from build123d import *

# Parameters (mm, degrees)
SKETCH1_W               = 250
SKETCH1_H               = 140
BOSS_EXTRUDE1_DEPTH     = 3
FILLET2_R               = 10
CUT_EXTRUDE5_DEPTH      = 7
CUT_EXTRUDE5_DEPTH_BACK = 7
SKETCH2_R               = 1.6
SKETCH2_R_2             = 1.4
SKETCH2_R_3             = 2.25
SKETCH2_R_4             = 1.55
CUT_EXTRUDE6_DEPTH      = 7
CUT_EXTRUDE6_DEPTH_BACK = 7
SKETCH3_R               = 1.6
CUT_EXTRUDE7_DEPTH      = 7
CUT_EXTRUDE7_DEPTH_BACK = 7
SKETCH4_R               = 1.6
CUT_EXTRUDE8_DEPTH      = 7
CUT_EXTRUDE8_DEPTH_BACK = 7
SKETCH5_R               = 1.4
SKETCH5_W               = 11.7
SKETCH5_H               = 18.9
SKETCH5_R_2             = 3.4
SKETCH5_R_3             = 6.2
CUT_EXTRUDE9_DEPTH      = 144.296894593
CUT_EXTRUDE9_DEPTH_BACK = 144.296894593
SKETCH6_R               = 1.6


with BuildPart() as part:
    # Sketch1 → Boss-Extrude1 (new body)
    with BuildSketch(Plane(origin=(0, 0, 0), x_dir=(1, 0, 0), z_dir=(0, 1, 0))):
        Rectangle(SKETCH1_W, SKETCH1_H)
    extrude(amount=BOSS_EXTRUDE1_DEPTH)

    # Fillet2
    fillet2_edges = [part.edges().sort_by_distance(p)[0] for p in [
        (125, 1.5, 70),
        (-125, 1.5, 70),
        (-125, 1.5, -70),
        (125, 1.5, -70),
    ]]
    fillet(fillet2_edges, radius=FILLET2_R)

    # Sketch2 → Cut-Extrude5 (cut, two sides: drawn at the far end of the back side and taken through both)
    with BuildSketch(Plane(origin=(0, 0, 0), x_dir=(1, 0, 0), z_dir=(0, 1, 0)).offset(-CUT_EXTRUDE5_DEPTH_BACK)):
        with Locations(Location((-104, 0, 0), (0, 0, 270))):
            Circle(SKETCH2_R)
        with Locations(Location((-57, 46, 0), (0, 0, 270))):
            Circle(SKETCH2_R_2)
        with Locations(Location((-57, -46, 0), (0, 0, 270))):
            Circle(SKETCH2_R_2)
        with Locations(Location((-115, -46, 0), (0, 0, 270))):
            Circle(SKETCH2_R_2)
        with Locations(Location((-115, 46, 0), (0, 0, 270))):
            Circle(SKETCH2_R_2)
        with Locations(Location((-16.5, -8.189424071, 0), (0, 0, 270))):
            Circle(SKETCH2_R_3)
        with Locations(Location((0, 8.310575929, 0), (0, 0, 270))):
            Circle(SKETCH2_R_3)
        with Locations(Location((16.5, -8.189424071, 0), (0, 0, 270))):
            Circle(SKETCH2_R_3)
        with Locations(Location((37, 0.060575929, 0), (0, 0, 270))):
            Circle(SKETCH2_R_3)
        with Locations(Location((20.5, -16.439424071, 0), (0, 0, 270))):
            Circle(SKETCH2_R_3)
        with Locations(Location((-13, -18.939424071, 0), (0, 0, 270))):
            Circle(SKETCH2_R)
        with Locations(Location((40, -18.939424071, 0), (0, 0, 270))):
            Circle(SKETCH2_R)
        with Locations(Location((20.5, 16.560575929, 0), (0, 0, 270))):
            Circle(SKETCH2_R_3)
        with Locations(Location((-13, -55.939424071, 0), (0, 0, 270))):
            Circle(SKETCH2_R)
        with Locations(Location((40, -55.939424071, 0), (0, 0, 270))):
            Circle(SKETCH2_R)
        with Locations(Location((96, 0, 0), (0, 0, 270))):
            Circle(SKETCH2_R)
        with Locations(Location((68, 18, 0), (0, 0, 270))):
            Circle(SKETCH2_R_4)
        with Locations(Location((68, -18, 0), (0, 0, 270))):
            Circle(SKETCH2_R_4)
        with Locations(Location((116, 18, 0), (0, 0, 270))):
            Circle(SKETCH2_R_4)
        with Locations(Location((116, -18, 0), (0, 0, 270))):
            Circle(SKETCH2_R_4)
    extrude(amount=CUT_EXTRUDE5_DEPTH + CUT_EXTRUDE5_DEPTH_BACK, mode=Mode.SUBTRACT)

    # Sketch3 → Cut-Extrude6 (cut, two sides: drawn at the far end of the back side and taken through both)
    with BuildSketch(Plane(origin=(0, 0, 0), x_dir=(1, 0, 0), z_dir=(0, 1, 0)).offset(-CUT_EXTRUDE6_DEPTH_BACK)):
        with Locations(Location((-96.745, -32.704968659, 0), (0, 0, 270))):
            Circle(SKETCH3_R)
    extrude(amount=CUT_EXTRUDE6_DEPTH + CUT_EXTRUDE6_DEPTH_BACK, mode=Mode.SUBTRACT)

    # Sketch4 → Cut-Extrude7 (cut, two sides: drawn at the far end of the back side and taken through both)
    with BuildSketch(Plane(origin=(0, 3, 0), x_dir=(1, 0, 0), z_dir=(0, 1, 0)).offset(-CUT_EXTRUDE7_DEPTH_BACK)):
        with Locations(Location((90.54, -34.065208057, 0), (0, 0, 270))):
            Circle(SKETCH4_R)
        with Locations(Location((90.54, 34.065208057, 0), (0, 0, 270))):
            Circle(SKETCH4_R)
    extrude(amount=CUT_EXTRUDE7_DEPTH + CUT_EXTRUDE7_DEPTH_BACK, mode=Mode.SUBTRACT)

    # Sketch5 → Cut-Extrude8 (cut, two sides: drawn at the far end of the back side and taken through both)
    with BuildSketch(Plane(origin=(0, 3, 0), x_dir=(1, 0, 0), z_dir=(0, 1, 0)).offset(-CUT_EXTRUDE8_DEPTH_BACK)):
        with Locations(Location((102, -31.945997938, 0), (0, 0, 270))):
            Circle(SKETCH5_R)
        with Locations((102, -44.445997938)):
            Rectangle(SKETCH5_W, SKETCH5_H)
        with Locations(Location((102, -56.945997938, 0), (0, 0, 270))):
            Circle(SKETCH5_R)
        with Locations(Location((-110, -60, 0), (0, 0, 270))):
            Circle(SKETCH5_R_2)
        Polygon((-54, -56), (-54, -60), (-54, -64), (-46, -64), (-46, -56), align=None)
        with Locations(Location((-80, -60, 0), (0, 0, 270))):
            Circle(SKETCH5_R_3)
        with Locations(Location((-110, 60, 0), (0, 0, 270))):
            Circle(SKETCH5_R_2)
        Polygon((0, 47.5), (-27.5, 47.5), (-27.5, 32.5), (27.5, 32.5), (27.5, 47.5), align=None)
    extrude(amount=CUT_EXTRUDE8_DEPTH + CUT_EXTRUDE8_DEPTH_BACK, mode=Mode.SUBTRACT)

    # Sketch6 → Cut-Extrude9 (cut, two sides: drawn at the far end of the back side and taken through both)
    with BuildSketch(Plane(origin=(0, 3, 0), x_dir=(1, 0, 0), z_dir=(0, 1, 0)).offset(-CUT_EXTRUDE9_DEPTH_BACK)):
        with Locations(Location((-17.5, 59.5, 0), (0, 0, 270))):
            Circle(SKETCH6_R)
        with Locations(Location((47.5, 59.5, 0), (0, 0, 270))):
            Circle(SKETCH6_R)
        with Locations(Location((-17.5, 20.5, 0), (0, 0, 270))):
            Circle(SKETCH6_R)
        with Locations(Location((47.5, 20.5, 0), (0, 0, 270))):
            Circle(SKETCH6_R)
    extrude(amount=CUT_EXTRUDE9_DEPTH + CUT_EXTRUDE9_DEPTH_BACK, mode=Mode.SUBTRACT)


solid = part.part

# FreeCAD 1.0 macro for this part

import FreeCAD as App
import Part
import Sketcher
from FreeCAD import Vector
Q = App.Units.Quantity


def edges_at(feature, points):
    """Names of the edges that pass closest to the given points."""
    edges = feature.Shape.Edges
    near = lambda p: min(range(len(edges)), key=lambda i: edges[i].distToShape(Part.Vertex(*p))[0])
    return sorted({f"Edge{near(p) + 1}" for p in points})


def add_polygon(sketch, points):
    """Adds a closed chain of lines whose ends are joined by coincident constraints."""
    first, n = sketch.GeometryCount, len(points)
    for a, b in zip(points, points[1:] + points[:1]):
        sketch.addGeometry(Part.LineSegment(App.Vector(*a, 0), App.Vector(*b, 0)), False)
    for i in range(n):
        sketch.addConstraint(Sketcher.Constraint("Coincident", first + i, 2, first + (i + 1) % n, 1))

doc = App.newDocument("Part")
params = doc.addObject("Spreadsheet::Sheet", "Params")
for row, (alias, value) in enumerate([
    ("sketch1_width", "250 mm"),
    ("sketch1_height", "140 mm"),
    ("pad1_length", "3 mm"),
    ("fillet_radius", "10 mm"),
    ("sketch2_diameter", "3.2 mm"),
    ("sketch2_diameter2", "2.8 mm"),
    ("sketch2_diameter3", "4.5 mm"),
    ("sketch2_diameter4", "3.1 mm"),
    ("sketch3_diameter", "3.2 mm"),
    ("sketch4_diameter", "3.2 mm"),
    ("sketch5_diameter", "2.8 mm"),
    ("sketch5_diameter2", "6.8 mm"),
    ("sketch5_diameter3", "12.4 mm"),
    ("sketch5_width", "8 mm"),
    ("sketch5_width2", "55 mm"),
    ("sketch6_diameter", "3.2 mm"),
], start=1):
    params.set(f"A{row}", alias)
    params.set(f"B{row}", "=" + value)
    params.setAlias(f"B{row}", alias)

body = doc.addObject("PartDesign::Body", "Body")

# Sketch on XZ plane
sketch1 = body.newObject("Sketcher::SketchObject", "Sketch")
sketch1.AttachmentSupport = (doc.getObject("XZ_Plane"), [""])
sketch1.MapMode = "FlatFace"
add_polygon(sketch1, [(-125, -70), (-125, 70), (125, 70), (125, -70)])  # lines 0-3
sketch1.addConstraint([
    Sketcher.Constraint("Vertical", 0),
    Sketcher.Constraint("Horizontal", 1),
    Sketcher.Constraint("Vertical", 2),
    Sketcher.Constraint("Horizontal", 3),
    Sketcher.Constraint("Symmetric", 0, 2, 2, 2, -1, 1),
    Sketcher.Constraint("DistanceX", 1, 1, 1, 2, Q("250 mm")),
    Sketcher.Constraint("DistanceY", 0, 1, 0, 2, Q("140 mm")),
])
sketch1.setExpression("Constraints[9]", "Params.sketch1_width")
sketch1.setExpression("Constraints[10]", "Params.sketch1_height")
pad1 = body.newObject("PartDesign::Pad", "Pad")
pad1.Profile = sketch1
pad1.setExpression("Length", "Params.pad1_length")
pad1.Reversed = True
doc.recompute()

fillet = body.newObject("PartDesign::Fillet", "Fillet")
fillet.Base = (pad1, edges_at(pad1, [
    (125, 1.5, 70),
    (-125, 1.5, 70),
    (-125, 1.5, -70),
    (125, 1.5, -70),
]))
fillet.setExpression("Radius", "Params.fillet_radius")

# Sketch on XZ plane
sketch2 = body.newObject("Sketcher::SketchObject", "Sketch001")
sketch2.AttachmentSupport = (doc.getObject("XZ_Plane"), [""])
sketch2.MapMode = "FlatFace"
sketch2.addGeometry([
    Part.Circle(Vector(-104, 0, 0), Vector(0, 0, 1), 1.6),  # 0
    Part.Circle(Vector(-57, -46, 0), Vector(0, 0, 1), 1.4),  # 1
    Part.Circle(Vector(-57, 46, 0), Vector(0, 0, 1), 1.4),  # 2
    Part.Circle(Vector(-115, 46, 0), Vector(0, 0, 1), 1.4),  # 3
    Part.Circle(Vector(-115, -46, 0), Vector(0, 0, 1), 1.4),  # 4
    Part.Circle(Vector(-16.5, 8.2, 0), Vector(0, 0, 1), 2.2),  # 5
    Part.Circle(Vector(0, -8.3, 0), Vector(0, 0, 1), 2.2),  # 6
    Part.Circle(Vector(16.5, 8.2, 0), Vector(0, 0, 1), 2.2),  # 7
    Part.Circle(Vector(37, -0.1, 0), Vector(0, 0, 1), 2.2),  # 8
    Part.Circle(Vector(20.5, 16.4, 0), Vector(0, 0, 1), 2.2),  # 9
    Part.Circle(Vector(-13, 18.9, 0), Vector(0, 0, 1), 1.6),  # 10
    Part.Circle(Vector(40, 18.9, 0), Vector(0, 0, 1), 1.6),  # 11
    Part.Circle(Vector(20.5, -16.6, 0), Vector(0, 0, 1), 2.2),  # 12
    Part.Circle(Vector(-13, 55.9, 0), Vector(0, 0, 1), 1.6),  # 13
    Part.Circle(Vector(40, 55.9, 0), Vector(0, 0, 1), 1.6),  # 14
    Part.Circle(Vector(96, 0, 0), Vector(0, 0, 1), 1.6),  # 15
    Part.Circle(Vector(68, -18, 0), Vector(0, 0, 1), 1.6),  # 16
    Part.Circle(Vector(68, 18, 0), Vector(0, 0, 1), 1.6),  # 17
    Part.Circle(Vector(116, -18, 0), Vector(0, 0, 1), 1.6),  # 18
    Part.Circle(Vector(116, 18, 0), Vector(0, 0, 1), 1.6),  # 19
], False)
sketch2.addConstraint([
    Sketcher.Constraint("Equal", 1, 2),
    Sketcher.Constraint("Equal", 2, 3),
    Sketcher.Constraint("Equal", 3, 4),
    Sketcher.Constraint("Equal", 5, 6),
    Sketcher.Constraint("Equal", 6, 7),
    Sketcher.Constraint("Equal", 7, 8),
    Sketcher.Constraint("Equal", 8, 9),
    Sketcher.Constraint("Equal", 0, 10),
    Sketcher.Constraint("Equal", 10, 11),
    Sketcher.Constraint("Equal", 9, 12),
    Sketcher.Constraint("Equal", 11, 13),
    Sketcher.Constraint("Equal", 13, 14),
    Sketcher.Constraint("Equal", 14, 15),
    Sketcher.Constraint("Equal", 16, 17),
    Sketcher.Constraint("Equal", 17, 18),
    Sketcher.Constraint("Equal", 18, 19),
    Sketcher.Constraint("Symmetric", 5, 3, 7, 3, -2),
    Sketcher.Constraint("Symmetric", 1, 3, 2, 3, -1),
    Sketcher.Constraint("Symmetric", 3, 3, 4, 3, -1),
    Sketcher.Constraint("Symmetric", 16, 3, 17, 3, -1),
    Sketcher.Constraint("Symmetric", 18, 3, 19, 3, -1),
    Sketcher.Constraint("PointOnObject", 0, 3, -1),
    Sketcher.Constraint("PointOnObject", 6, 3, -2),
    Sketcher.Constraint("PointOnObject", 15, 3, -1),
    Sketcher.Constraint("Horizontal", 2, 3, 3, 3),
    Sketcher.Constraint("Horizontal", 10, 3, 11, 3),
    Sketcher.Constraint("Horizontal", 13, 3, 14, 3),
    Sketcher.Constraint("Horizontal", 16, 3, 18, 3),
    Sketcher.Constraint("Vertical", 9, 3, 12, 3),
    Sketcher.Constraint("Vertical", 10, 3, 13, 3),
    Sketcher.Constraint("Vertical", 11, 3, 14, 3),
    Sketcher.Constraint("Diameter", 0, Q("3.2 mm")),
    Sketcher.Constraint("Diameter", 1, Q("2.8 mm")),
    Sketcher.Constraint("Diameter", 5, Q("4.5 mm")),
    Sketcher.Constraint("Diameter", 16, Q("3.1 mm")),
    Sketcher.Constraint("DistanceX", 0, 3, -1, 1, Q("104 mm")),
    Sketcher.Constraint("DistanceX", 1, 3, -1, 1, Q("57 mm")),
    Sketcher.Constraint("DistanceY", 1, 3, -1, 1, Q("46 mm")),
    Sketcher.Constraint("DistanceX", 3, 3, -1, 1, Q("115 mm")),
    Sketcher.Constraint("DistanceX", -1, 1, 8, 3, Q("37 mm")),
    Sketcher.Constraint("DistanceX", 10, 3, -1, 1, Q("13 mm")),
    Sketcher.Constraint("DistanceX", -1, 1, 11, 3, Q("40 mm")),
    Sketcher.Constraint("DistanceX", -1, 1, 15, 3, Q("96 mm")),
    Sketcher.Constraint("DistanceX", -1, 1, 16, 3, Q("68 mm")),
    Sketcher.Constraint("DistanceY", 16, 3, -1, 1, Q("18 mm")),
    Sketcher.Constraint("DistanceX", -1, 1, 18, 3, Q("116 mm")),
    Sketcher.Constraint("DistanceX", 5, 3, 7, 3, Q("33 mm")),
    Sketcher.Constraint("DistanceX", 7, 3, 9, 3, Q("4 mm")),
    Sketcher.Constraint("DistanceY", 8, 3, 11, 3, Q("19 mm")),
    Sketcher.Constraint("DistanceY", 12, 3, 9, 3, Q("33 mm")),
    Sketcher.Constraint("DistanceY", 10, 3, 13, 3, Q("37 mm")),
    Sketcher.Constraint("DistanceY", 6, 3, 5, 3, Q("16.5 mm")),
    Sketcher.Constraint("DistanceY", 8, 3, 9, 3, Q("16.5 mm")),
    Sketcher.Constraint("DistanceY", 8, 3, 7, 3, Q("8.25 mm")),
    Sketcher.Constraint("DistanceY", -1, 1, 5, 3, Q("8.189424 mm")),
])
sketch2.setExpression("Constraints[31]", "Params.sketch2_diameter")
sketch2.setExpression("Constraints[32]", "Params.sketch2_diameter2")
sketch2.setExpression("Constraints[33]", "Params.sketch2_diameter3")
sketch2.setExpression("Constraints[34]", "Params.sketch2_diameter4")
pocket1 = body.newObject("PartDesign::Pocket", "Pocket")
pocket1.Profile = sketch2
pocket1.Type = "ThroughAll"
pocket1.Midplane = True

# Sketch on XZ plane
sketch3 = body.newObject("Sketcher::SketchObject", "Sketch002")
sketch3.AttachmentSupport = (doc.getObject("XZ_Plane"), [""])
sketch3.MapMode = "FlatFace"
sketch3.addGeometry(Part.Circle(Vector(-96.7, 32.7, 0), Vector(0, 0, 1), 1.6), False)
sketch3.addConstraint([
    Sketcher.Constraint("Diameter", 0, Q("3.2 mm")),
    Sketcher.Constraint("DistanceX", 0, 3, -1, 1, Q("96.745 mm")),
    Sketcher.Constraint("DistanceY", -1, 1, 0, 3, Q("32.704969 mm")),
])
sketch3.setExpression("Constraints[0]", "Params.sketch3_diameter")
pocket2 = body.newObject("PartDesign::Pocket", "Pocket001")
pocket2.Profile = sketch3
pocket2.Type = "ThroughAll"
pocket2.Midplane = True

# Sketch on XZ plane
sketch4 = body.newObject("Sketcher::SketchObject", "Sketch003")
sketch4.AttachmentSupport = (doc.getObject("XZ_Plane"), [""])
sketch4.MapMode = "FlatFace"
sketch4.AttachmentOffset = App.Placement(Vector(0, 0, -3), App.Rotation())
sketch4.addGeometry([
    Part.Circle(Vector(90.5, 34.1, 0), Vector(0, 0, 1), 1.6),
    Part.Circle(Vector(90.5, -34.1, 0), Vector(0, 0, 1), 1.6),
], False)
sketch4.addConstraint([
    Sketcher.Constraint("Equal", 0, 1),
    Sketcher.Constraint("Symmetric", 0, 3, 1, 3, -1),
    Sketcher.Constraint("Diameter", 0, Q("3.2 mm")),
    Sketcher.Constraint("DistanceX", -1, 1, 0, 3, Q("90.54 mm")),
    Sketcher.Constraint("DistanceY", -1, 1, 0, 3, Q("34.065208 mm")),
])
sketch4.setExpression("Constraints[2]", "Params.sketch4_diameter")
pocket3 = body.newObject("PartDesign::Pocket", "Pocket002")
pocket3.Profile = sketch4
pocket3.Type = "ThroughAll"
pocket3.Midplane = True

# Sketch on XZ plane
sketch5 = body.newObject("Sketcher::SketchObject", "Sketch004")
sketch5.AttachmentSupport = (doc.getObject("XZ_Plane"), [""])
sketch5.MapMode = "FlatFace"
sketch5.AttachmentOffset = App.Placement(Vector(0, 0, -3), App.Rotation())
sketch5.addGeometry(Part.Circle(Vector(102, 31.9, 0), Vector(0, 0, 1), 1.4), False)  # 0
add_polygon(sketch5, [(96.2, 35), (96.2, 53.9), (107.8, 53.9), (107.8, 35)])  # lines 1-4
sketch5.addGeometry(Part.Circle(Vector(102, 56.9, 0), Vector(0, 0, 1), 1.4), False)  # 5
sketch5.addGeometry(Part.Circle(Vector(-110, 60, 0), Vector(0, 0, 1), 3.4), False)  # 6
add_polygon(sketch5, [(-54, 56), (-54, 64), (-46, 64), (-46, 56)])  # lines 7-10
sketch5.addGeometry(Part.Circle(Vector(-80, 60, 0), Vector(0, 0, 1), 6.2), False)  # 11
sketch5.addGeometry(Part.Circle(Vector(-110, -60, 0), Vector(0, 0, 1), 3.4), False)  # 12
add_polygon(sketch5, [(-27.5, -47.5), (-27.5, -32.5), (27.5, -32.5), (27.5, -47.5)])  # lines 13-16
sketch5.addConstraint([
    Sketcher.Constraint("Vertical", 1),
    Sketcher.Constraint("Horizontal", 2),
    Sketcher.Constraint("Vertical", 3),
    Sketcher.Constraint("Horizontal", 4),
    Sketcher.Constraint("Vertical", 7),
    Sketcher.Constraint("Horizontal", 8),
    Sketcher.Constraint("Vertical", 9),
    Sketcher.Constraint("Horizontal", 10),
    Sketcher.Constraint("Vertical", 13),
    Sketcher.Constraint("Horizontal", 14),
    Sketcher.Constraint("Vertical", 15),
    Sketcher.Constraint("Horizontal", 16),
    Sketcher.Constraint("Equal", 0, 5),
    Sketcher.Constraint("Equal", 6, 12),
    Sketcher.Constraint("Symmetric", 6, 3, 12, 3, -1),
    Sketcher.Constraint("Horizontal", 6, 3, 11, 3),
    Sketcher.Constraint("Vertical", 0, 3, 5, 3),
    Sketcher.Constraint("Equal", 10, 7),
    Sketcher.Constraint("Diameter", 0, Q("2.8 mm")),
    Sketcher.Constraint("Diameter", 6, Q("6.8 mm")),
    Sketcher.Constraint("Diameter", 11, Q("12.4 mm")),
    Sketcher.Constraint("DistanceX", 8, 1, 8, 2, Q("8 mm")),
    Sketcher.Constraint("DistanceX", 14, 1, 14, 2, Q("55 mm")),
    Sketcher.Constraint("DistanceY", 13, 1, 13, 2, Q("15 mm")),
    Sketcher.Constraint("DistanceX", 2, 1, 2, 2, Q("11.7 mm")),
    Sketcher.Constraint("DistanceY", 1, 1, 1, 2, Q("18.9 mm")),
    Sketcher.Constraint("DistanceX", -1, 1, 0, 3, Q("102 mm")),
    Sketcher.Constraint("DistanceX", 6, 3, -1, 1, Q("110 mm")),
    Sketcher.Constraint("DistanceY", -1, 1, 6, 3, Q("60 mm")),
    Sketcher.Constraint("DistanceX", 11, 3, -1, 1, Q("80 mm")),
    Sketcher.Constraint("DistanceX", 7, 2, -1, 1, Q("54 mm")),
    Sketcher.Constraint("DistanceY", -1, 1, 7, 2, Q("64 mm")),
    Sketcher.Constraint("DistanceY", 0, 3, 5, 3, Q("25 mm")),
    Sketcher.Constraint("DistanceX", 13, 2, -1, 1, Q("27.5 mm")),
    Sketcher.Constraint("DistanceY", 13, 2, -1, 1, Q("32.5 mm")),
    Sketcher.Constraint("DistanceX", -1, 1, 1, 2, Q("96.15 mm")),
    Sketcher.Constraint("DistanceY", 1, 2, 5, 3, Q("3.05 mm")),
    Sketcher.Constraint("DistanceY", -1, 1, 0, 3, Q("31.945998 mm")),
])
sketch5.setExpression("Constraints[30]", "Params.sketch5_diameter")
sketch5.setExpression("Constraints[31]", "Params.sketch5_diameter2")
sketch5.setExpression("Constraints[32]", "Params.sketch5_diameter3")
sketch5.setExpression("Constraints[33]", "Params.sketch5_width")
sketch5.setExpression("Constraints[34]", "Params.sketch5_width2")
pocket4 = body.newObject("PartDesign::Pocket", "Pocket003")
pocket4.Profile = sketch5
pocket4.Type = "ThroughAll"
pocket4.Midplane = True

# Sketch on XZ plane
sketch6 = body.newObject("Sketcher::SketchObject", "Sketch005")
sketch6.AttachmentSupport = (doc.getObject("XZ_Plane"), [""])
sketch6.MapMode = "FlatFace"
sketch6.AttachmentOffset = App.Placement(Vector(0, 0, -3), App.Rotation())
sketch6.addGeometry([
    Part.Circle(Vector(-17.5, -59.5, 0), Vector(0, 0, 1), 1.6),
    Part.Circle(Vector(47.5, -59.5, 0), Vector(0, 0, 1), 1.6),
    Part.Circle(Vector(-17.5, -20.5, 0), Vector(0, 0, 1), 1.6),
    Part.Circle(Vector(47.5, -20.5, 0), Vector(0, 0, 1), 1.6),
], False)
sketch6.addConstraint([
    Sketcher.Constraint("Equal", 0, 1),
    Sketcher.Constraint("Equal", 1, 2),
    Sketcher.Constraint("Equal", 2, 3),
    Sketcher.Constraint("Horizontal", 0, 3, 1, 3),
    Sketcher.Constraint("Horizontal", 2, 3, 3, 3),
    Sketcher.Constraint("Vertical", 0, 3, 2, 3),
    Sketcher.Constraint("Vertical", 1, 3, 3, 3),
    Sketcher.Constraint("Diameter", 0, Q("3.2 mm")),
    Sketcher.Constraint("DistanceX", 0, 3, 1, 3, Q("65 mm")),
    Sketcher.Constraint("DistanceY", 0, 3, 2, 3, Q("39 mm")),
    Sketcher.Constraint("DistanceX", 0, 3, -1, 1, Q("17.5 mm")),
    Sketcher.Constraint("DistanceY", 0, 3, -1, 1, Q("59.5 mm")),
])
sketch6.setExpression("Constraints[7]", "Params.sketch6_diameter")
pocket5 = body.newObject("PartDesign::Pocket", "Pocket004")
pocket5.Profile = sketch6
pocket5.Type = "ThroughAll"
pocket5.Midplane = True

doc.recompute()
